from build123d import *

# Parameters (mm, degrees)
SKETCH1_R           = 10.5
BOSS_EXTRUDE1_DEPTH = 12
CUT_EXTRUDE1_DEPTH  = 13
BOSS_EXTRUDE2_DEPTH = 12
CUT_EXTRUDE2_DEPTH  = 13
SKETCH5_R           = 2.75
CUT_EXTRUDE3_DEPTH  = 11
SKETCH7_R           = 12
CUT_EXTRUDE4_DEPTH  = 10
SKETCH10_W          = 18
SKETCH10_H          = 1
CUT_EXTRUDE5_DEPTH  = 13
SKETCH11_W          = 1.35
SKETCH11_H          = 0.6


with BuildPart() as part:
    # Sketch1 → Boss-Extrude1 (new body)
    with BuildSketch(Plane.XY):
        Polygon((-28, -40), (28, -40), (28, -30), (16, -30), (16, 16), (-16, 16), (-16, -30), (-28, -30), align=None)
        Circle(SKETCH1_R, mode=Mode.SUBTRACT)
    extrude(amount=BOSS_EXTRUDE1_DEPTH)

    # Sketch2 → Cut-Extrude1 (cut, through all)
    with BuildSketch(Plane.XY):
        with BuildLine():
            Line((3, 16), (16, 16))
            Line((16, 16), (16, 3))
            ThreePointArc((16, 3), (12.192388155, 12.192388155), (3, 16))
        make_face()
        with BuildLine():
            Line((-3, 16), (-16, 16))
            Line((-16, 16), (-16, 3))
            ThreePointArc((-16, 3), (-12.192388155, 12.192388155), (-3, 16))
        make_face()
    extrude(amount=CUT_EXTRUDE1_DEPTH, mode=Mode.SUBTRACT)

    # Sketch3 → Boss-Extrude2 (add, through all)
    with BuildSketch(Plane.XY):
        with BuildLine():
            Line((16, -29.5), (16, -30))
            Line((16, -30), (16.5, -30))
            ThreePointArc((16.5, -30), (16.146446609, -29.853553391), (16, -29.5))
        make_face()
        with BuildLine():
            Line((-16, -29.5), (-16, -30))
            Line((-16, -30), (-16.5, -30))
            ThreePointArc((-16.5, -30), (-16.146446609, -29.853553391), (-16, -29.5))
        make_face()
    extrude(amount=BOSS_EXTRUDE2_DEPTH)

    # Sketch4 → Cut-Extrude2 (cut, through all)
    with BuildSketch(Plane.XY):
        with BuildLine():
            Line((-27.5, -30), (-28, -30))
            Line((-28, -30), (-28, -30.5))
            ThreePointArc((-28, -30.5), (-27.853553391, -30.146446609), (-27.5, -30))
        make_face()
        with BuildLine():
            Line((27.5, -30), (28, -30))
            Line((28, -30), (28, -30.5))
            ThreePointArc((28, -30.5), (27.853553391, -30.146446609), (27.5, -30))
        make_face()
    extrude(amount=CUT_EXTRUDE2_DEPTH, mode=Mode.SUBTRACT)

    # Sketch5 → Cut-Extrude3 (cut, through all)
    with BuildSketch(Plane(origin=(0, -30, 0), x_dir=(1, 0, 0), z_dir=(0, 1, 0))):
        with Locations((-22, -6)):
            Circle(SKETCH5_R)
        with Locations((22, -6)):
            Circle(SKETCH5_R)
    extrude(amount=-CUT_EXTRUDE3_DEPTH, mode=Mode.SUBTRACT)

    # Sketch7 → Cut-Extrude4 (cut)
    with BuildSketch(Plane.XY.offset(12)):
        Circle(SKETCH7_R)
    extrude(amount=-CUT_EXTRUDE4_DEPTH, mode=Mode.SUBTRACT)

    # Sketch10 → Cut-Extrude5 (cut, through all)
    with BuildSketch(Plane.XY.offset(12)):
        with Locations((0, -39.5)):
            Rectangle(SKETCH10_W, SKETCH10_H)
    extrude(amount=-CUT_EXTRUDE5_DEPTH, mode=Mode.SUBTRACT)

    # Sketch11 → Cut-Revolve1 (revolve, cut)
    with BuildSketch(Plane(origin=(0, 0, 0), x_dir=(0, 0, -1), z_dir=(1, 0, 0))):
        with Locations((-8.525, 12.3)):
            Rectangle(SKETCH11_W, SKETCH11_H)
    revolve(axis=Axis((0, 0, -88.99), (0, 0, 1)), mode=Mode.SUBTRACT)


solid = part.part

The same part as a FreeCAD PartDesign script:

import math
import FreeCAD as App
import Part
import Sketcher

doc = App.newDocument("Part")
params = doc.addObject("Spreadsheet::Sheet", "Params")
for row, (alias, value) in enumerate([
    ("sketch1_diameter", "21 mm"),
    ("sketch1_width", "56 mm"),
    ("sketch1_width2", "12 mm"),
    ("sketch1_height", "10 mm"),
    ("sketch1_height2", "46 mm"),
    ("pad1_length", "12 mm"),
    ("sketch2_radius", "13 mm"),
    ("sketch3_radius", "0.5 mm"),
    ("sketch4_radius", "0.5 mm"),
    ("sketch5_diameter", "5.5 mm"),
    ("sketch6_diameter", "24 mm"),
    ("pocket4_length", "10 mm"),
    ("sketch7_width", "18 mm"),
    ("sketch7_height", "1 mm"),
    ("sketch8_width", "0.6 mm"),
    ("sketch8_height", "1.35 mm"),
    ("groove_angle", "360 deg"),
], start=1):
    params.set(f"A{row}", alias)
    params.set(f"B{row}", "=" + value)
    params.setAlias(f"B{row}", alias)

body = doc.addObject("PartDesign::Body", "Body")

# Sketch on XY plane
sketch1 = body.newObject("Sketcher::SketchObject", "Sketch")
sketch1.AttachmentSupport = (doc.getObject("XY_Plane"), [""])
sketch1.MapMode = "FlatFace"
sketch1.addGeometry([
    Part.LineSegment(App.Vector(-28, -40, 0), App.Vector(28, -40, 0)),  # 0
    Part.LineSegment(App.Vector(28, -40, 0), App.Vector(28, -30, 0)),  # 1
    Part.LineSegment(App.Vector(28, -30, 0), App.Vector(16, -30, 0)),  # 2
    Part.LineSegment(App.Vector(16, -30, 0), App.Vector(16, 16, 0)),  # 3
    Part.LineSegment(App.Vector(16, 16, 0), App.Vector(-16, 16, 0)),  # 4
    Part.LineSegment(App.Vector(-16, 16, 0), App.Vector(-16, -30, 0)),  # 5
    Part.LineSegment(App.Vector(-16, -30, 0), App.Vector(-28, -30, 0)),  # 6
    Part.LineSegment(App.Vector(-28, -30, 0), App.Vector(-28, -40, 0)),  # 7
    Part.Circle(App.Vector(0, 0, 0), App.Vector(0, 0, 1), 10),  # 8
], False)
sketch1.addConstraint([
    Sketcher.Constraint("Coincident", 0, 2, 1, 1),
    Sketcher.Constraint("Coincident", 1, 2, 2, 1),
    Sketcher.Constraint("Coincident", 2, 2, 3, 1),
    Sketcher.Constraint("Coincident", 3, 2, 4, 1),
    Sketcher.Constraint("Coincident", 4, 2, 5, 1),
    Sketcher.Constraint("Coincident", 5, 2, 6, 1),
    Sketcher.Constraint("Coincident", 6, 2, 7, 1),
    Sketcher.Constraint("Coincident", 7, 2, 0, 1),
    Sketcher.Constraint("Horizontal", 0),
    Sketcher.Constraint("Vertical", 1),
    Sketcher.Constraint("Horizontal", 2),
    Sketcher.Constraint("Vertical", 3),
    Sketcher.Constraint("Horizontal", 4),
    Sketcher.Constraint("Vertical", 5),
    Sketcher.Constraint("Horizontal", 6),
    Sketcher.Constraint("Vertical", 7),
    Sketcher.Constraint("Coincident", 8, 3, -1, 1),
    Sketcher.Constraint("Symmetric", 2, 2, 5, 2, -2),
    Sketcher.Constraint("Equal", 2, 6),
    Sketcher.Constraint("Diameter", 8, 21.0),
    Sketcher.Constraint("DistanceX", 0, 1, 0, 2, 56.0),
    Sketcher.Constraint("DistanceX", 2, 2, 2, 1, 12.0),
    Sketcher.Constraint("DistanceY", 1, 1, 1, 2, 10.0),
    Sketcher.Constraint("DistanceY", 3, 1, 3, 2, 46.0),
    Sketcher.Constraint("DistanceY", 0, 2, -1, 1, 40.0),
])
sketch1.setExpression("Constraints[19]", "Params.sketch1_diameter")
sketch1.setExpression("Constraints[20]", "Params.sketch1_width")
sketch1.setExpression("Constraints[21]", "Params.sketch1_width2")
sketch1.setExpression("Constraints[22]", "Params.sketch1_height")
sketch1.setExpression("Constraints[23]", "Params.sketch1_height2")
pad1 = body.newObject("PartDesign::Pad", "Pad")
pad1.Profile = sketch1
pad1.setExpression("Length", "Params.pad1_length")

# Sketch on XY plane
sketch2 = body.newObject("Sketcher::SketchObject", "Sketch001")
sketch2.AttachmentSupport = (doc.getObject("XY_Plane"), [""])
sketch2.MapMode = "FlatFace"
sketch2.addGeometry([
    Part.LineSegment(App.Vector(16, 16, 0), App.Vector(3, 16, 0)),  # 0
    Part.ArcOfCircle(Part.Circle(App.Vector(3, 3, 0), App.Vector(0, 0, 1), 13), math.radians(0), math.radians(90)),  # 1
    Part.LineSegment(App.Vector(16, 3, 0), App.Vector(16, 16, 0)),  # 2
    Part.LineSegment(App.Vector(-3, 16, 0), App.Vector(-16, 16, 0)),  # 3
    Part.LineSegment(App.Vector(-16, 16, 0), App.Vector(-16, 3, 0)),  # 4
    Part.ArcOfCircle(Part.Circle(App.Vector(-3, 3, 0), App.Vector(0, 0, 1), 13), math.radians(90), math.radians(180)),  # 5
], False)
sketch2.addConstraint([
    Sketcher.Constraint("Tangent", 0, 2, 1, 2),
    Sketcher.Constraint("Tangent", 1, 1, 2, 1),
    Sketcher.Constraint("Coincident", 2, 2, 0, 1),
    Sketcher.Constraint("Coincident", 3, 2, 4, 1),
    Sketcher.Constraint("Tangent", 4, 2, 5, 2),
    Sketcher.Constraint("Tangent", 5, 1, 3, 1),
    Sketcher.Constraint("Horizontal", 0),
    Sketcher.Constraint("Vertical", 2),
    Sketcher.Constraint("Horizontal", 3),
    Sketcher.Constraint("Vertical", 4),
    Sketcher.Constraint("Equal", 1, 5),
    Sketcher.Constraint("Symmetric", 1, 3, 5, 3, -2),
    Sketcher.Constraint("Radius", 1, 13.0),
    Sketcher.Constraint("DistanceX", -1, 1, 1, 3, 3.0),
    Sketcher.Constraint("DistanceY", -1, 1, 1, 3, 3.0),
])
sketch2.setExpression("Constraints[12]", "Params.sketch2_radius")
pocket1 = body.newObject("PartDesign::Pocket", "Pocket")
pocket1.Profile = sketch2
pocket1.Type = "ThroughAll"
pocket1.Reversed = True

# Sketch on XY plane
sketch3 = body.newObject("Sketcher::SketchObject", "Sketch002")
sketch3.AttachmentSupport = (doc.getObject("XY_Plane"), [""])
sketch3.MapMode = "FlatFace"
sketch3.addGeometry([
    Part.LineSegment(App.Vector(16, -29.5, 0), App.Vector(16, -30, 0)),  # 0
    Part.LineSegment(App.Vector(16, -30, 0), App.Vector(16.5, -30, 0)),  # 1
    Part.ArcOfCircle(Part.Circle(App.Vector(16.5, -29.5, 0), App.Vector(0, 0, 1), 0.5), math.radians(180), math.radians(270)),  # 2
    Part.LineSegment(App.Vector(-16, -30, 0), App.Vector(-16, -29.5, 0)),  # 3
    Part.ArcOfCircle(Part.Circle(App.Vector(-16.5, -29.5, 0), App.Vector(0, 0, 1), 0.5), math.radians(-90), math.radians(0)),  # 4
    Part.LineSegment(App.Vector(-16.5, -30, 0), App.Vector(-16, -30, 0)),  # 5
], False)
sketch3.addConstraint([
    Sketcher.Constraint("Coincident", 0, 2, 1, 1),
    Sketcher.Constraint("Tangent", 1, 2, 2, 2),
    Sketcher.Constraint("Tangent", 2, 1, 0, 1),
    Sketcher.Constraint("Tangent", 3, 2, 4, 2),
    Sketcher.Constraint("Tangent", 4, 1, 5, 1),
    Sketcher.Constraint("Coincident", 5, 2, 3, 1),
    Sketcher.Constraint("Vertical", 0),
    Sketcher.Constraint("Horizontal", 1),
    Sketcher.Constraint("Vertical", 3),
    Sketcher.Constraint("Horizontal", 5),
    Sketcher.Constraint("Equal", 2, 4),
    Sketcher.Constraint("Symmetric", 2, 3, 4, 3, -2),
    Sketcher.Constraint("Radius", 2, 0.5),
    Sketcher.Constraint("DistanceX", -1, 1, 0, 2, 16.0),
    Sketcher.Constraint("DistanceY", 0, 2, -1, 1, 30.0),
])
sketch3.setExpression("Constraints[12]", "Params.sketch3_radius")
pad2 = body.newObject("PartDesign::Pad", "Pad001")
pad2.Profile = sketch3
pad2.Type = "UpToLast"

# Sketch on XY plane
sketch4 = body.newObject("Sketcher::SketchObject", "Sketch003")
sketch4.AttachmentSupport = (doc.getObject("XY_Plane"), [""])
sketch4.MapMode = "FlatFace"
sketch4.addGeometry([
    Part.LineSegment(App.Vector(-27.5, -30, 0), App.Vector(-28, -30, 0)),  # 0
    Part.LineSegment(App.Vector(-28, -30, 0), App.Vector(-28, -30.5, 0)),  # 1
    Part.ArcOfCircle(Part.Circle(App.Vector(-27.5, -30.5, 0), App.Vector(0, 0, 1), 0.5), math.radians(90), math.radians(180)),  # 2
    Part.LineSegment(App.Vector(28, -30, 0), App.Vector(27.5, -30, 0)),  # 3
    Part.ArcOfCircle(Part.Circle(App.Vector(27.5, -30.5, 0), App.Vector(0, 0, 1), 0.5), math.radians(0), math.radians(90)),  # 4
    Part.LineSegment(App.Vector(28, -30.5, 0), App.Vector(28, -30, 0)),  # 5
], False)
sketch4.addConstraint([
    Sketcher.Constraint("Coincident", 0, 2, 1, 1),
    Sketcher.Constraint("Tangent", 1, 2, 2, 2),
    Sketcher.Constraint("Tangent", 2, 1, 0, 1),
    Sketcher.Constraint("Tangent", 3, 2, 4, 2),
    Sketcher.Constraint("Tangent", 4, 1, 5, 1),
    Sketcher.Constraint("Coincident", 5, 2, 3, 1),
    Sketcher.Constraint("Horizontal", 0),
    Sketcher.Constraint("Vertical", 1),
    Sketcher.Constraint("Horizontal", 3),
    Sketcher.Constraint("Vertical", 5),
    Sketcher.Constraint("Equal", 2, 4),
    Sketcher.Constraint("Symmetric", 2, 3, 4, 3, -2),
    Sketcher.Constraint("Radius", 2, 0.5),
    Sketcher.Constraint("DistanceX", 0, 2, -1, 1, 28.0),
    Sketcher.Constraint("DistanceY", 0, 2, -1, 1, 30.0),
])
sketch4.setExpression("Constraints[12]", "Params.sketch4_radius")
pocket2 = body.newObject("PartDesign::Pocket", "Pocket001")
pocket2.Profile = sketch4
pocket2.Type = "ThroughAll"
pocket2.Reversed = True

# Sketch on XZ plane
sketch5 = body.newObject("Sketcher::SketchObject", "Sketch004")
sketch5.AttachmentSupport = (doc.getObject("XZ_Plane"), [""])
sketch5.MapMode = "FlatFace"
sketch5.AttachmentOffset = App.Placement(App.Vector(0, 0, 30), App.Rotation())
sketch5.addGeometry([
    Part.Circle(App.Vector(-22, 6, 0), App.Vector(0, 0, 1), 2.8),
    Part.Circle(App.Vector(22, 6, 0), App.Vector(0, 0, 1), 2.8),
], False)
sketch5.addConstraint([
    Sketcher.Constraint("Equal", 0, 1),
    Sketcher.Constraint("Symmetric", 0, 3, 1, 3, -2),
    Sketcher.Constraint("Diameter", 0, 5.5),
    Sketcher.Constraint("DistanceX", 0, 3, -1, 1, 22.0),
    Sketcher.Constraint("DistanceY", -1, 1, 0, 3, 6.0),
])
sketch5.setExpression("Constraints[2]", "Params.sketch5_diameter")
pocket3 = body.newObject("PartDesign::Pocket", "Pocket002")
pocket3.Profile = sketch5
pocket3.Type = "ThroughAll"
pocket3.Reversed = True

# Sketch on XY plane
sketch6 = body.newObject("Sketcher::SketchObject", "Sketch005")
sketch6.AttachmentSupport = (doc.getObject("XY_Plane"), [""])
sketch6.MapMode = "FlatFace"
sketch6.AttachmentOffset = App.Placement(App.Vector(0, 0, 12), App.Rotation())
sketch6.addGeometry(Part.Circle(App.Vector(0, 0, 0), App.Vector(0, 0, 1), 12), False)
sketch6.addConstraint([
    Sketcher.Constraint("Coincident", 0, 3, -1, 1),
    Sketcher.Constraint("Diameter", 0, 24.0),
])
sketch6.setExpression("Constraints[1]", "Params.sketch6_diameter")
pocket4 = body.newObject("PartDesign::Pocket", "Pocket003")
pocket4.Profile = sketch6
pocket4.setExpression("Length", "Params.pocket4_length")

# Sketch on XY plane
sketch7 = body.newObject("Sketcher::SketchObject", "Sketch006")
sketch7.AttachmentSupport = (doc.getObject("XY_Plane"), [""])
sketch7.MapMode = "FlatFace"
sketch7.AttachmentOffset = App.Placement(App.Vector(0, 0, 12), App.Rotation())
sketch7.addGeometry([
    Part.LineSegment(App.Vector(-9, -39, 0), App.Vector(-9, -40, 0)),
    Part.LineSegment(App.Vector(-9, -40, 0), App.Vector(9, -40, 0)),
    Part.LineSegment(App.Vector(9, -40, 0), App.Vector(9, -39, 0)),
    Part.LineSegment(App.Vector(9, -39, 0), App.Vector(-9, -39, 0)),
], False)
sketch7.addConstraint([
    Sketcher.Constraint("Coincident", 0, 2, 1, 1),
    Sketcher.Constraint("Coincident", 1, 2, 2, 1),
    Sketcher.Constraint("Coincident", 2, 2, 3, 1),
    Sketcher.Constraint("Coincident", 3, 2, 0, 1),
    Sketcher.Constraint("Vertical", 0),
    Sketcher.Constraint("Horizontal", 1),
    Sketcher.Constraint("Vertical", 2),
    Sketcher.Constraint("Horizontal", 3),
    Sketcher.Constraint("DistanceX", 1, 1, 1, 2, 18.0),
    Sketcher.Constraint("DistanceY", 0, 2, 0, 1, 1.0),
    Sketcher.Constraint("DistanceX", 0, 2, -1, 1, 9.0),
    Sketcher.Constraint("DistanceY", 0, 2, -1, 1, 40.0),
])
sketch7.setExpression("Constraints[8]", "Params.sketch7_width")
sketch7.setExpression("Constraints[9]", "Params.sketch7_height")
pocket5 = body.newObject("PartDesign::Pocket", "Pocket004")
pocket5.Profile = sketch7
pocket5.Type = "ThroughAll"

# Sketch on YZ plane
sketch8 = body.newObject("Sketcher::SketchObject", "Sketch007")
sketch8.AttachmentSupport = (doc.getObject("YZ_Plane"), [""])
sketch8.MapMode = "FlatFace"
sketch8.addGeometry([
    Part.LineSegment(App.Vector(12.6, 9.2, 0), App.Vector(12, 9.2, 0)),
    Part.LineSegment(App.Vector(12, 9.2, 0), App.Vector(12, 7.8, 0)),
    Part.LineSegment(App.Vector(12, 7.8, 0), App.Vector(12.6, 7.8, 0)),
    Part.LineSegment(App.Vector(12.6, 7.8, 0), App.Vector(12.6, 9.2, 0)),
], False)
sketch8.addConstraint([
    Sketcher.Constraint("Coincident", 0, 2, 1, 1),
    Sketcher.Constraint("Coincident", 1, 2, 2, 1),
    Sketcher.Constraint("Coincident", 2, 2, 3, 1),
    Sketcher.Constraint("Coincident", 3, 2, 0, 1),
    Sketcher.Constraint("Horizontal", 0),
    Sketcher.Constraint("Vertical", 1),
    Sketcher.Constraint("Horizontal", 2),
    Sketcher.Constraint("Vertical", 3),
    Sketcher.Constraint("DistanceX", 0, 2, 0, 1, 0.6),
    Sketcher.Constraint("DistanceX", -1, 1, 0, 2, 12.0),
    Sketcher.Constraint("DistanceY", 1, 2, 1, 1, 1.35),
    Sketcher.Constraint("DistanceY", -1, 1, 0, 2, 9.2),
])
sketch8.setExpression("Constraints[8]", "Params.sketch8_width")
sketch8.setExpression("Constraints[10]", "Params.sketch8_height")
groove = body.newObject("PartDesign::Groove", "Groove")
groove.Profile = sketch8
groove.ReferenceAxis = (sketch8, ["V_Axis"])
groove.setExpression("Angle", "Params.groove_angle")

doc.recompute()
